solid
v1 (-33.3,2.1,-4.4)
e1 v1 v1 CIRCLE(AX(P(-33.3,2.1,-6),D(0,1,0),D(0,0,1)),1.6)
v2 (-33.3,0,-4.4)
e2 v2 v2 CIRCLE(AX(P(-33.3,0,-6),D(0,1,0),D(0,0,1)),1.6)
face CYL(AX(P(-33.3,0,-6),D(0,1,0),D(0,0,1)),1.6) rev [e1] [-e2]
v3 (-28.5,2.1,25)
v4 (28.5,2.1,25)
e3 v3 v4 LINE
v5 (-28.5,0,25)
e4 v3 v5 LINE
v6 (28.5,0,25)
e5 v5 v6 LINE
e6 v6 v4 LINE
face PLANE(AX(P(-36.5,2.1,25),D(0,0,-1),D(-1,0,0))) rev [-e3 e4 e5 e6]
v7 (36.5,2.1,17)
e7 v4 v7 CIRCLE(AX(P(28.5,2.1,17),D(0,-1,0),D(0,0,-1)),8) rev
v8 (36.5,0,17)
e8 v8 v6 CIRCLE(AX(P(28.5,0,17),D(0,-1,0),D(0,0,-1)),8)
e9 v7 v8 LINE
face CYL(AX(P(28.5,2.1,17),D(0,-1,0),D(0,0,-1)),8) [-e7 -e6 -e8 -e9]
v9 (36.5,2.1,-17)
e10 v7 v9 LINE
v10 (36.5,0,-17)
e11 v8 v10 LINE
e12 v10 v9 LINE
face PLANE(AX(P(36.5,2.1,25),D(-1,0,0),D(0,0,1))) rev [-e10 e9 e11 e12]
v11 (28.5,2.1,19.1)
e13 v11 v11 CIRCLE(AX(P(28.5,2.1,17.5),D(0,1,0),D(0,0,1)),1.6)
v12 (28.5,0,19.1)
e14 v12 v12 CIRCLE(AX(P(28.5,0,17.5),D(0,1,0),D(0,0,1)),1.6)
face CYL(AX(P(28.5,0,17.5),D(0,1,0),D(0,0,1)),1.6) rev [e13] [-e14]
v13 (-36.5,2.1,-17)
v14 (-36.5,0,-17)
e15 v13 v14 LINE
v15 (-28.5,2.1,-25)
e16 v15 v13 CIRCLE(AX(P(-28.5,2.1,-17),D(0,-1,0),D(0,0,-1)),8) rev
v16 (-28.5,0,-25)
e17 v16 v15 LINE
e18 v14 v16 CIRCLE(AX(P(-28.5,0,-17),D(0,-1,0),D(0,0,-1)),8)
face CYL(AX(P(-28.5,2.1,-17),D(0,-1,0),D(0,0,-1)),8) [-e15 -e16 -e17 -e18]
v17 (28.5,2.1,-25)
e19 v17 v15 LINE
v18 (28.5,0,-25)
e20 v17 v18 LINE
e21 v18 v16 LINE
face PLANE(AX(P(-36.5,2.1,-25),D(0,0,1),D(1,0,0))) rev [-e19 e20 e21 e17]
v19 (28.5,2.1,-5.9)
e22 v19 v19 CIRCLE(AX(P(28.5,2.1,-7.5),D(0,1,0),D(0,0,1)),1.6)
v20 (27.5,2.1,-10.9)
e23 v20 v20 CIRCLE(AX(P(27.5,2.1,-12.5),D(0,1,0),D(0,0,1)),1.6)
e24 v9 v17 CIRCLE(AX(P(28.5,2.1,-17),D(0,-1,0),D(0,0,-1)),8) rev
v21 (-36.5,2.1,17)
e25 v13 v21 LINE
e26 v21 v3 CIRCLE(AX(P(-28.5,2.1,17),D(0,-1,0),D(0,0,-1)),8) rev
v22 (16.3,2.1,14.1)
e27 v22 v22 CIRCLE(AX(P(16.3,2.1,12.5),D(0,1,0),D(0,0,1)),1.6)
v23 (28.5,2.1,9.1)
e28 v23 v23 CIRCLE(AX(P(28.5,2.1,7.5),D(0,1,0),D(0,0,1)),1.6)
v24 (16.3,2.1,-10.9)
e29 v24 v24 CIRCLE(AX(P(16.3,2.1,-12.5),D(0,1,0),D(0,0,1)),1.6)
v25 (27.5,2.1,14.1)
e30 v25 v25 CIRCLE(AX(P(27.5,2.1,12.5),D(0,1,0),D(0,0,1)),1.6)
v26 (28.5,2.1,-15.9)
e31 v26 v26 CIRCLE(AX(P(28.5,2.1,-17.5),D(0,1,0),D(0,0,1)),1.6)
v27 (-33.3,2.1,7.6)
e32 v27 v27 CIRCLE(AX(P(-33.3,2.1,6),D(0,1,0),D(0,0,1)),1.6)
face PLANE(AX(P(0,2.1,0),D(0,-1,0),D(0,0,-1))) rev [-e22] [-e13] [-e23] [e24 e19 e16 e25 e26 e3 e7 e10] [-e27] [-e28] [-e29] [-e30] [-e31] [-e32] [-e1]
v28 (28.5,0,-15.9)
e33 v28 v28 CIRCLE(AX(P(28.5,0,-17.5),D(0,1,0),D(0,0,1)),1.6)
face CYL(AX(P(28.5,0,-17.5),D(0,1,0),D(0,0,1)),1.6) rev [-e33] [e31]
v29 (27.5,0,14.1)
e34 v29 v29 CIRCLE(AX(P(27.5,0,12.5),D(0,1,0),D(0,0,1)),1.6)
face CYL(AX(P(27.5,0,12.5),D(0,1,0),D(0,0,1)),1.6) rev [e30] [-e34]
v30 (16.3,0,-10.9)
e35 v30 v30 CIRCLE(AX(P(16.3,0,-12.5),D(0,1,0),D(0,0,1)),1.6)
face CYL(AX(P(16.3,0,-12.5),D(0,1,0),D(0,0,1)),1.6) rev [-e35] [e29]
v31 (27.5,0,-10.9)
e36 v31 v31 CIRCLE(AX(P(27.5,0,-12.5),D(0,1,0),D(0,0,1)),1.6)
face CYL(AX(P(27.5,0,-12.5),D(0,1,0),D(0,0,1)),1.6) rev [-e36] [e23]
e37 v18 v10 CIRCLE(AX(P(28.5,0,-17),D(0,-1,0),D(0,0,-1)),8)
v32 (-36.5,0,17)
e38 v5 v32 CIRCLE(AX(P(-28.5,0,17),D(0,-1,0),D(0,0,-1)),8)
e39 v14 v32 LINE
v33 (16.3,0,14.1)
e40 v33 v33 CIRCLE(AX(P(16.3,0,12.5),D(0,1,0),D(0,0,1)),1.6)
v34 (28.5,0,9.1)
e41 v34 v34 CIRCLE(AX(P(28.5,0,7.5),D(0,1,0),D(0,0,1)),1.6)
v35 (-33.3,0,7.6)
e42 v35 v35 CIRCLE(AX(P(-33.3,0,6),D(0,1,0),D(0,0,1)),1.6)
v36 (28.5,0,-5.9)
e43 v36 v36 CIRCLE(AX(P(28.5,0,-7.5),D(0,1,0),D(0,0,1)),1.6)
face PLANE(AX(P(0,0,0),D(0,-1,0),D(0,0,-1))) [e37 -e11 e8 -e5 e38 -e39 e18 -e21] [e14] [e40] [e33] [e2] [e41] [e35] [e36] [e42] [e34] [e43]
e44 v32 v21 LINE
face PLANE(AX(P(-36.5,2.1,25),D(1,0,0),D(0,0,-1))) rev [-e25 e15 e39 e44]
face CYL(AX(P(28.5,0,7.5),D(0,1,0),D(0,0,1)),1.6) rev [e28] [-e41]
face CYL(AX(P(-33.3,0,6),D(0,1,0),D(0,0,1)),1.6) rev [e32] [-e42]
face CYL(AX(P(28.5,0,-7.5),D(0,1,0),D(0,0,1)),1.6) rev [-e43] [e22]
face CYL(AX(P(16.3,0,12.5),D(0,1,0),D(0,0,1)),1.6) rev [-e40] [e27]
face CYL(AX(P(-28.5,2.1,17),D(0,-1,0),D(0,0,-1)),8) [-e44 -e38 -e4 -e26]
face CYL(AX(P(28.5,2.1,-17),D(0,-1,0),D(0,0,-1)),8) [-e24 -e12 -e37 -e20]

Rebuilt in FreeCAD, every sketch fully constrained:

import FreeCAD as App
import Part
import Sketcher
from FreeCAD import Vector


def edges_at(feature, points):
    """Names of the edges that pass closest to the given points."""
    edges = feature.Shape.Edges
    near = lambda p: min(range(len(edges)), key=lambda i: edges[i].distToShape(Part.Vertex(*p))[0])
    return sorted({f"Edge{near(p) + 1}" for p in points})


def add_polygon(sketch, points):
    """Adds a closed chain of lines whose ends are joined by coincident constraints."""
    first, n = sketch.GeometryCount, len(points)
    for a, b in zip(points, points[1:] + points[:1]):
        sketch.addGeometry(Part.LineSegment(App.Vector(*a, 0), App.Vector(*b, 0)), False)
    for i in range(n):
        sketch.addConstraint(Sketcher.Constraint("Coincident", first + i, 2, first + (i + 1) % n, 1))

doc = App.newDocument("Part")
body = doc.addObject("PartDesign::Body", "Body")

# Sketch on XZ plane
sketch1 = body.newObject("Sketcher::SketchObject", "Sketch")
sketch1.AttachmentSupport = (doc.getObject("XZ_Plane"), [""])
sketch1.MapMode = "FlatFace"
add_polygon(sketch1, [(-36.5, -25), (-36.5, 25), (36.5, 25), (36.5, -25)])  # lines 0-3
sketch1.addConstraint([
    Sketcher.Constraint("Vertical", 0),
    Sketcher.Constraint("Horizontal", 1),
    Sketcher.Constraint("Vertical", 2),
    Sketcher.Constraint("Horizontal", 3),
    Sketcher.Constraint("Symmetric", 0, 2, 2, 2, -1, 1),
    Sketcher.Constraint("DistanceX", 1, 1, 1, 2, 73.0),
    Sketcher.Constraint("DistanceY", 0, 1, 0, 2, 50.0),
])
pad1 = body.newObject("PartDesign::Pad", "Pad")
pad1.Profile = sketch1
pad1.Length = 2.1
pad1.Reversed = True

# Sketch on XZ plane
sketch2 = body.newObject("Sketcher::SketchObject", "Sketch001")
sketch2.AttachmentSupport = (doc.getObject("XZ_Plane"), [""])
sketch2.MapMode = "FlatFace"
sketch2.AttachmentOffset = App.Placement(Vector(0, 0, -2.1), App.Rotation())
sketch2.addGeometry([
    Part.Circle(Vector(-33.3, -6, 0), Vector(0, 0, 1), 1.6),
    Part.Circle(Vector(-33.3, 6, 0), Vector(0, 0, 1), 1.6),
], False)
sketch2.addConstraint([
    Sketcher.Constraint("Equal", 0, 1),
    Sketcher.Constraint("Symmetric", 0, 3, 1, 3, -1),
    Sketcher.Constraint("Diameter", 0, 3.2),
    Sketcher.Constraint("DistanceY", 0, 3, -1, 1, 6.0),
    Sketcher.Constraint("DistanceX", 0, 3, -1, 1, 33.3),
])
pocket1 = body.newObject("PartDesign::Pocket", "Pocket")
pocket1.Profile = sketch2
pocket1.Length = 2.1
pocket1.Reversed = True

# Sketch on XZ plane
sketch3 = body.newObject("Sketcher::SketchObject", "Sketch002")
sketch3.AttachmentSupport = (doc.getObject("XZ_Plane"), [""])
sketch3.MapMode = "FlatFace"
sketch3.AttachmentOffset = App.Placement(Vector(0, 0, -2.1), App.Rotation())
sketch3.addGeometry([
    Part.Circle(Vector(28.5, -17.5, 0), Vector(0, 0, 1), 1.6),
    Part.Circle(Vector(28.5, -7.5, 0), Vector(0, 0, 1), 1.6),
    Part.Circle(Vector(28.5, 7.5, 0), Vector(0, 0, 1), 1.6),
    Part.Circle(Vector(28.5, 17.5, 0), Vector(0, 0, 1), 1.6),
], False)
sketch3.addConstraint([
    Sketcher.Constraint("Equal", 0, 1),
    Sketcher.Constraint("Equal", 1, 2),
    Sketcher.Constraint("Equal", 2, 3),
    Sketcher.Constraint("Symmetric", 1, 3, 2, 3, -1),
    Sketcher.Constraint("Symmetric", 0, 3, 3, 3, -1),
    Sketcher.Constraint("Vertical", 0, 3, 1, 3),
    Sketcher.Constraint("Diameter", 0, 3.2),
    Sketcher.Constraint("DistanceY", 0, 3, 1, 3, 10.0),
    Sketcher.Constraint("DistanceY", 1, 3, 2, 3, 15.0),
    Sketcher.Constraint("DistanceX", -1, 1, 0, 3, 28.5),
])
pocket2 = body.newObject("PartDesign::Pocket", "Pocket001")
pocket2.Profile = sketch3
pocket2.Length = 2.1
pocket2.Reversed = True

# Sketch on XZ plane
sketch4 = body.newObject("Sketcher::SketchObject", "Sketch003")
sketch4.AttachmentSupport = (doc.getObject("XZ_Plane"), [""])
sketch4.MapMode = "FlatFace"
sketch4.AttachmentOffset = App.Placement(Vector(0, 0, -2.1), App.Rotation())
sketch4.addGeometry([
    Part.Circle(Vector(16.3, -12.5, 0), Vector(0, 0, 1), 1.6),
    Part.Circle(Vector(16.3, 12.5, 0), Vector(0, 0, 1), 1.6),
    Part.Circle(Vector(27.5, -12.5, 0), Vector(0, 0, 1), 1.6),
    Part.Circle(Vector(27.5, 12.5, 0), Vector(0, 0, 1), 1.6),
], False)
sketch4.addConstraint([
    Sketcher.Constraint("Equal", 0, 1),
    Sketcher.Constraint("Equal", 1, 2),
    Sketcher.Constraint("Equal", 2, 3),
    Sketcher.Constraint("Symmetric", 0, 3, 1, 3, -1),
    Sketcher.Constraint("Symmetric", 2, 3, 3, 3, -1),
    Sketcher.Constraint("Horizontal", 0, 3, 2, 3),
    Sketcher.Constraint("Diameter", 0, 3.2),
    Sketcher.Constraint("DistanceY", 0, 3, 1, 3, 25.0),
    Sketcher.Constraint("DistanceX", -1, 1, 0, 3, 16.3),
    Sketcher.Constraint("DistanceX", -1, 1, 2, 3, 27.5),
])
pocket3 = body.newObject("PartDesign::Pocket", "Pocket002")
pocket3.Profile = sketch4
pocket3.Length = 2.1
pocket3.Reversed = True
doc.recompute()

fillet = body.newObject("PartDesign::Fillet", "Fillet")
fillet.Base = (pocket3, edges_at(pocket3, [
    (36.5, 1.05, 25),
    (-36.5, 1.05, 25),
    (-36.5, 1.05, -25),
    (36.5, 1.05, -25),
]))
fillet.Radius = 8

doc.recompute()
